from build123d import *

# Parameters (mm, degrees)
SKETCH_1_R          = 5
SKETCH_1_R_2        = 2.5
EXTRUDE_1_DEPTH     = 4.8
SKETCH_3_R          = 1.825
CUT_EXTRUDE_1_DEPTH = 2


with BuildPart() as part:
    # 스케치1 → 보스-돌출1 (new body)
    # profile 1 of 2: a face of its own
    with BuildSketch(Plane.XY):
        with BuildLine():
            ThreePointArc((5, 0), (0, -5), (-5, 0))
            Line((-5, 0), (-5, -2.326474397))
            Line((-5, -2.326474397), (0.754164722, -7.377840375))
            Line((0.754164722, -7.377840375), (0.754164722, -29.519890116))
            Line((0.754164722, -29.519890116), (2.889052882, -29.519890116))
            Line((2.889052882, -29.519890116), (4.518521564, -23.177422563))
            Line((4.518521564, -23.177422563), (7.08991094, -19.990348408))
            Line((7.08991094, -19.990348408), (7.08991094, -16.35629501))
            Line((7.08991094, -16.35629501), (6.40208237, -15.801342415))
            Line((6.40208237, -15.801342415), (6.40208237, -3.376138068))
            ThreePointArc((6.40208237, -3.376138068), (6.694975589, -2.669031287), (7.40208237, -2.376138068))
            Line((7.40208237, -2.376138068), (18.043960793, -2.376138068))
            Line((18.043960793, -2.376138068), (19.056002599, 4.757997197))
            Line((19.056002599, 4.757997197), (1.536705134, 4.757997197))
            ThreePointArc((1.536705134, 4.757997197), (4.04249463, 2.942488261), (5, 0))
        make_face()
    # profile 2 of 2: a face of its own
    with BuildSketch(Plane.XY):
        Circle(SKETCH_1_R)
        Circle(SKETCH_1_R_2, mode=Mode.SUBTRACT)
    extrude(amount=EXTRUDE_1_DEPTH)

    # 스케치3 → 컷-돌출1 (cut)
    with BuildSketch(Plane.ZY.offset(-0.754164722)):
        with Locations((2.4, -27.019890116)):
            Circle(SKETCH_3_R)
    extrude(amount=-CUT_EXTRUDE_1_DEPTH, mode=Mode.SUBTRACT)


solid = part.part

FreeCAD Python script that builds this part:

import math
import FreeCAD as App
import Part
import Sketcher

V = App.Vector

doc = App.newDocument("Part")
params = doc.addObject("Spreadsheet::Sheet", "Params")
for row, (alias, value) in enumerate([
    ("sketch1_diameter", "5 mm"),
    ("sketch1_radius", "1 mm"),
    ("sketch1_radius2", "5 mm"),
    ("pad1_length", "4.8 mm"),
    ("sketch2_diameter", "3.65 mm"),
    ("pocket1_length", "2 mm"),
], start=1):
    params.set(f"A{row}", alias)
    params.set(f"B{row}", "=" + value)
    params.setAlias(f"B{row}", alias)

body = doc.addObject("PartDesign::Body", "Body")

# Sketch on XY plane
sketch1 = doc.addObject("Sketcher::SketchObject", "Sketch")
body.addObject(sketch1)
sketch1.AttachmentSupport = (doc.XY_Plane, [""])
sketch1.MapMode = "FlatFace"
sketch1.addGeometry([
    Part.LineSegment(V(-5, 0, 0), V(-5, -2.3, 0)),  # 0
    Part.LineSegment(V(-5, -2.3, 0), V(0.8, -7.4, 0)),  # 1
    Part.LineSegment(V(0.8, -7.4, 0), V(0.8, -29.5, 0)),  # 2
    Part.LineSegment(V(0.8, -29.5, 0), V(2.9, -29.5, 0)),  # 3
    Part.LineSegment(V(2.9, -29.5, 0), V(4.5, -23.2, 0)),  # 4
    Part.LineSegment(V(4.5, -23.2, 0), V(7.1, -20, 0)),  # 5
    Part.LineSegment(V(7.1, -20, 0), V(7.1, -16.4, 0)),  # 6
    Part.LineSegment(V(7.1, -16.4, 0), V(6.4, -15.8, 0)),  # 7
    Part.LineSegment(V(6.4, -15.8, 0), V(6.4, -3.4, 0)),  # 8
    Part.ArcOfCircle(Part.Circle(V(7.4, -3.4, 0), V(0, 0, 1), 1), math.radians(90), math.radians(180)),  # 9
    Part.LineSegment(V(7.4, -2.4, 0), V(18, -2.4, 0)),  # 10
    Part.LineSegment(V(18, -2.4, 0), V(19.1, 4.8, 0)),  # 11
    Part.LineSegment(V(19.1, 4.8, 0), V(1.5, 4.8, 0)),  # 12
    Part.ArcOfCircle(Part.Circle(V(0, 0, 0), V(0, 0, 1), 5), math.radians(72), math.radians(180)),  # 13
    Part.Circle(V(0, 0, 0), V(0, 0, 1), 2.5),  # 14
], False)
sketch1.addConstraint([
    Sketcher.Constraint("Coincident", 0, 2, 1, 1),
    Sketcher.Constraint("Coincident", 1, 2, 2, 1),
    Sketcher.Constraint("Coincident", 2, 2, 3, 1),
    Sketcher.Constraint("Coincident", 3, 2, 4, 1),
    Sketcher.Constraint("Coincident", 4, 2, 5, 1),
    Sketcher.Constraint("Coincident", 5, 2, 6, 1),
    Sketcher.Constraint("Coincident", 6, 2, 7, 1),
    Sketcher.Constraint("Coincident", 7, 2, 8, 1),
    Sketcher.Constraint("Tangent", 8, 2, 9, 2),
    Sketcher.Constraint("Tangent", 9, 1, 10, 1),
    Sketcher.Constraint("Coincident", 10, 2, 11, 1),
    Sketcher.Constraint("Coincident", 11, 2, 12, 1),
    Sketcher.Constraint("Coincident", 12, 2, 13, 1),
    Sketcher.Constraint("Tangent", 13, 2, 0, 1),
    Sketcher.Constraint("Vertical", 0),
    Sketcher.Constraint("Vertical", 2),
    Sketcher.Constraint("Horizontal", 3),
    Sketcher.Constraint("Vertical", 6),
    Sketcher.Constraint("Vertical", 8),
    Sketcher.Constraint("Horizontal", 10),
    Sketcher.Constraint("Horizontal", 12),
    Sketcher.Constraint("Coincident", 13, 3, -1, 1),
    Sketcher.Constraint("Coincident", 14, 3, -1, 1),
    Sketcher.Constraint("Perpendicular", 5, 7),
    Sketcher.Constraint("Diameter", 14, 5.0),
    Sketcher.Constraint("Radius", 9, 1.0),
    Sketcher.Constraint("Radius", 13, 5.0),
    Sketcher.Constraint("DistanceX", 3, 1, 3, 2, 2.134888),
    Sketcher.Constraint("DistanceX", 10, 1, 10, 2, 10.641878),
    Sketcher.Constraint("DistanceY", 2, 2, 2, 1, 22.14205),
    Sketcher.Constraint("Distance", 1, 7.656808),
    Sketcher.Constraint("Distance", 4, 6.54844),
    Sketcher.Constraint("Distance", 11, 7.205561),
    Sketcher.Constraint("DistanceX", 12, 2, 12, 1, 17.519297),
    Sketcher.Constraint("DistanceY", 0, 2, 0, 1, 2.326474),
    Sketcher.Constraint("DistanceY", 6, 1, 6, 2, 3.634053),
    Sketcher.Constraint("DistanceY", 8, 1, 8, 2, 12.425204),
    Sketcher.Constraint("DistanceY", 9, 3, -1, 1, 3.376138),
    Sketcher.Constraint("DistanceY", 1, 2, -1, 1, 7.37784),
    Sketcher.Constraint("DistanceX", -1, 1, 4, 2, 4.518522),
    Sketcher.Constraint("DistanceX", -1, 1, 5, 2, 7.089911),
    Sketcher.Constraint("DistanceY", 5, 2, -1, 1, 19.990348),
])
sketch1.setExpression("Constraints[24]", "Params.sketch1_diameter")
sketch1.setExpression("Constraints[25]", "Params.sketch1_radius")
sketch1.setExpression("Constraints[26]", "Params.sketch1_radius2")
pad1 = doc.addObject("PartDesign::Pad", "Pad")
body.addObject(pad1)
pad1.Profile = sketch1
pad1.setExpression("Length", "Params.pad1_length")

# Sketch on YZ plane
sketch2 = doc.addObject("Sketcher::SketchObject", "Sketch001")
body.addObject(sketch2)
sketch2.AttachmentSupport = (doc.YZ_Plane, [""])
sketch2.MapMode = "FlatFace"
sketch2.AttachmentOffset = App.Placement(V(0, 0, 0.754165), App.Rotation())
sketch2.addGeometry(Part.Circle(V(-27, 2.4, 0), V(0, 0, 1), 1.8), False)
sketch2.addConstraint([
    Sketcher.Constraint("Diameter", 0, 3.65),
    Sketcher.Constraint("DistanceY", -1, 1, 0, 3, 2.4),
    Sketcher.Constraint("DistanceX", 0, 3, -1, 1, 27.01989),
])
sketch2.setExpression("Constraints[0]", "Params.sketch2_diameter")
pocket1 = doc.addObject("PartDesign::Pocket", "Pocket")
body.addObject(pocket1)
pocket1.Profile = sketch2
pocket1.setExpression("Length", "Params.pocket1_length")
pocket1.Reversed = True

doc.recompute()
